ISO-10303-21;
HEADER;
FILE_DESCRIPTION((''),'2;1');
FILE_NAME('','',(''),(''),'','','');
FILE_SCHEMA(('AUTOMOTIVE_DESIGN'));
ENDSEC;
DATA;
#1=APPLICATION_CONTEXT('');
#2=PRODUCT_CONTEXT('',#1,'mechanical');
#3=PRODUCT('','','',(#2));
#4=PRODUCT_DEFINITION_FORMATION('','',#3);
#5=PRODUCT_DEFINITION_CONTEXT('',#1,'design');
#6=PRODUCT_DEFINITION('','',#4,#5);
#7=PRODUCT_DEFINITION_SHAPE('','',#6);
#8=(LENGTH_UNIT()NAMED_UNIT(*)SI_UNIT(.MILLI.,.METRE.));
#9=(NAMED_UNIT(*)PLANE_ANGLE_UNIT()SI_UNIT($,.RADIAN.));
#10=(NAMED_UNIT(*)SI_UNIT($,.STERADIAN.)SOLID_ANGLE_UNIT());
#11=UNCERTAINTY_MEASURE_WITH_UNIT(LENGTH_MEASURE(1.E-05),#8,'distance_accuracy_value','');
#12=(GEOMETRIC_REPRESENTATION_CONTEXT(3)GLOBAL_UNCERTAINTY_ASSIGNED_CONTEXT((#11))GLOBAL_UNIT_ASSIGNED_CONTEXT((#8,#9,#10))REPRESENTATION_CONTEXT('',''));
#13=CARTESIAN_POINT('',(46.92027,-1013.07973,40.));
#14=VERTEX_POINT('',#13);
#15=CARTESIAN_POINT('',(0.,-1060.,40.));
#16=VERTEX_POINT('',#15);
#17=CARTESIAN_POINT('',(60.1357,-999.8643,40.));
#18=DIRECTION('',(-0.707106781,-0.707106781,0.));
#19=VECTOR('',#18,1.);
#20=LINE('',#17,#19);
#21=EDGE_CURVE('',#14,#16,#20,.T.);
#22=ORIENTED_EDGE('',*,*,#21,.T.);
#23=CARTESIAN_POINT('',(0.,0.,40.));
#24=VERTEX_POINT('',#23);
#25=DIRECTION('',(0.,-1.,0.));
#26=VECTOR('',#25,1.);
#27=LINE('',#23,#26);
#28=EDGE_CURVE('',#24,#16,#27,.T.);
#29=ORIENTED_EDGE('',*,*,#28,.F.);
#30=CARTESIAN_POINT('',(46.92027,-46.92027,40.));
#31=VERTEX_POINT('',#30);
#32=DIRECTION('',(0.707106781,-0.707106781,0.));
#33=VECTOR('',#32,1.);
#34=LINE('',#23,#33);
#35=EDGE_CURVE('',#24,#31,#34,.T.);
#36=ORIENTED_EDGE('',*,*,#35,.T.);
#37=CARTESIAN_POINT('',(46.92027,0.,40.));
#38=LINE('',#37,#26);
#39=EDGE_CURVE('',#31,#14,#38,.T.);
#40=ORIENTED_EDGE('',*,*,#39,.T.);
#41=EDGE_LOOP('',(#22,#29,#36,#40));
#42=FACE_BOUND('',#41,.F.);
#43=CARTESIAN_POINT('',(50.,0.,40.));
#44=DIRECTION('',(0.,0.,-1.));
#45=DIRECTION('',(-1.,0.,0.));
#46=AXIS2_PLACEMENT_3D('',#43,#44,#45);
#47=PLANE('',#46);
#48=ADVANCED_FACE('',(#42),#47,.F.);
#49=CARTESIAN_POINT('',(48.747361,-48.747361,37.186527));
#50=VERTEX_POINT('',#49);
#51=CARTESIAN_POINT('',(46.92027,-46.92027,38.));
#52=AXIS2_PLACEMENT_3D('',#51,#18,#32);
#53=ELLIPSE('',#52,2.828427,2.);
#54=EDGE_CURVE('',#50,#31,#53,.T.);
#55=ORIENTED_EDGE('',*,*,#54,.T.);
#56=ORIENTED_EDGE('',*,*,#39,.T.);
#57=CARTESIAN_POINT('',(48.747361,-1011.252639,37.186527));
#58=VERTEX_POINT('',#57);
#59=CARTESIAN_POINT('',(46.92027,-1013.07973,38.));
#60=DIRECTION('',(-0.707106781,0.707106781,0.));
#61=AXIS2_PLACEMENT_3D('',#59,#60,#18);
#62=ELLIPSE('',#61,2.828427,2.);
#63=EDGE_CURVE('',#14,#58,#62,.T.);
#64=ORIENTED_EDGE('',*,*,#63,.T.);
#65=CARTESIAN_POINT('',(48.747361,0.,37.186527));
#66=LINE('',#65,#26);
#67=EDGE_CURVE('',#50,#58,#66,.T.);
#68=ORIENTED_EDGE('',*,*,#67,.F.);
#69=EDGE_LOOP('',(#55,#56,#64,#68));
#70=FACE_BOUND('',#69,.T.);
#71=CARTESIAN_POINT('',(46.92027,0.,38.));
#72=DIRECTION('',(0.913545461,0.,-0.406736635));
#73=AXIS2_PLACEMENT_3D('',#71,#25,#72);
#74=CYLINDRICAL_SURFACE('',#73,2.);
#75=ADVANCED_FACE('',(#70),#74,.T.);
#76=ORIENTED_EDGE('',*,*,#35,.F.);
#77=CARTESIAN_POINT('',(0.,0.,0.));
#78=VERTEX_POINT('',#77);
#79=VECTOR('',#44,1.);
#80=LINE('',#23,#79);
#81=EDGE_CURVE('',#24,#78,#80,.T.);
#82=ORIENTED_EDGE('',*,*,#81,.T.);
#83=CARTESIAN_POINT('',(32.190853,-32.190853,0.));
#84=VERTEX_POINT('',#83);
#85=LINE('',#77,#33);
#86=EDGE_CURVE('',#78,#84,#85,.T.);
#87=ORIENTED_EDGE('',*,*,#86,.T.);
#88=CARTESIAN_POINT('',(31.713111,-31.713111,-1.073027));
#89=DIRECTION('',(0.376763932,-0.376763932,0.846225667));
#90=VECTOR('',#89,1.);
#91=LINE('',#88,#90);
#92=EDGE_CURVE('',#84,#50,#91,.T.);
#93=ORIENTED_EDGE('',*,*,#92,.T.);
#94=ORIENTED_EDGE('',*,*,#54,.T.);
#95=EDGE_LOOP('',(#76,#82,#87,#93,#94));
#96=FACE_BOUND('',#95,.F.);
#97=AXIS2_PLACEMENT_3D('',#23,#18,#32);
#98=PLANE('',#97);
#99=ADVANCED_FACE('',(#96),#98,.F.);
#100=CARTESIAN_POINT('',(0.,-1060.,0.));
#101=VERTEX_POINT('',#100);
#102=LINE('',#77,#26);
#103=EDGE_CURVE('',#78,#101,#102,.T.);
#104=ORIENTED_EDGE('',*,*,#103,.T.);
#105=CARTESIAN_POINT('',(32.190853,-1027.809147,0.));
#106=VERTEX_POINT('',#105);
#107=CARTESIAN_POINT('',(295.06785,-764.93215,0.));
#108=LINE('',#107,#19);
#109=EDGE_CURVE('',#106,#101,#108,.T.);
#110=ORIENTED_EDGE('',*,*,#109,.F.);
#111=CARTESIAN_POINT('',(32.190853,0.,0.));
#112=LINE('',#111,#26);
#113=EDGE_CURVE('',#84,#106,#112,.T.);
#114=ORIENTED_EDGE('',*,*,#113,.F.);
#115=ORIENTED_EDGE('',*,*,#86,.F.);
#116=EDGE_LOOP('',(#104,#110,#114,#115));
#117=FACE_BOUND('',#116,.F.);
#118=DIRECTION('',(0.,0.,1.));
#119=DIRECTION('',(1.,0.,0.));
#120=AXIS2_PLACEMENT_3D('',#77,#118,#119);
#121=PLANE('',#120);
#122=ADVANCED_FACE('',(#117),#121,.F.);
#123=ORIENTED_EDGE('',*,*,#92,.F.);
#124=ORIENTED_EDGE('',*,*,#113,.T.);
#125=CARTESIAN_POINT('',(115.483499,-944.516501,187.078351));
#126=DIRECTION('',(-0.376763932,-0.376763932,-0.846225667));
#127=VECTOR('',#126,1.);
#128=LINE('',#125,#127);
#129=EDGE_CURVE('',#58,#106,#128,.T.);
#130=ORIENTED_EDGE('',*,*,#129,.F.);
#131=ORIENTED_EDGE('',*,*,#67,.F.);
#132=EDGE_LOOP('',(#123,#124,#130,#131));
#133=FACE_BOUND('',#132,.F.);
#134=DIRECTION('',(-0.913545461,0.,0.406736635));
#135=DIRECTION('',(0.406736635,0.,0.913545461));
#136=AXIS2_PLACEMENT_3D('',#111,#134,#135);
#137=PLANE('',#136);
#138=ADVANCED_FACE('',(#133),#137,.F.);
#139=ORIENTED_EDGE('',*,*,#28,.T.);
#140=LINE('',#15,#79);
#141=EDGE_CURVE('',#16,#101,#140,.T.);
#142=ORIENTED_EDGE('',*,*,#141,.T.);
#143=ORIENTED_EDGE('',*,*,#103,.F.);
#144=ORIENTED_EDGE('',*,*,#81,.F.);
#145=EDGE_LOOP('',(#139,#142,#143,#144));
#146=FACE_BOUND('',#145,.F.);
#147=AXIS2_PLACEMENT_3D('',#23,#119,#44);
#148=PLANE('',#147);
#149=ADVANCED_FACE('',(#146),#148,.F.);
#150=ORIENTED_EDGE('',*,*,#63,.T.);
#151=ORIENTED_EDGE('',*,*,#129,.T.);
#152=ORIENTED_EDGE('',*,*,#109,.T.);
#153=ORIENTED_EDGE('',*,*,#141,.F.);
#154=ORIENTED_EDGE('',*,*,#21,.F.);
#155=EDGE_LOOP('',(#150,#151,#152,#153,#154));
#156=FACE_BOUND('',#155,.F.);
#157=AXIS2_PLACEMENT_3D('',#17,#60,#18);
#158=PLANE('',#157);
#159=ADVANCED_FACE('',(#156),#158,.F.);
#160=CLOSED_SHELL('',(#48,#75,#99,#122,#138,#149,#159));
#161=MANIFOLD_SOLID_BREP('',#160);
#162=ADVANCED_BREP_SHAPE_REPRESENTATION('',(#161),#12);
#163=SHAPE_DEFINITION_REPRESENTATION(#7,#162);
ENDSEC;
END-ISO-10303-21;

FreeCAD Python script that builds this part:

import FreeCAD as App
import Part
import Sketcher

V = App.Vector
Q = App.Units.Quantity


def edges_at(feature, points):
    """Names of the edges that pass closest to the given points."""
    edges = feature.Shape.Edges
    near = lambda p: min(range(len(edges)), key=lambda i: edges[i].distToShape(Part.Vertex(*p))[0])
    return sorted({f"Edge{near(p) + 1}" for p in points})

doc = App.newDocument("Part")
body = doc.addObject("PartDesign::Body", "Body")

# Sketch on XZ plane
sketch1 = body.newObject("Sketcher::SketchObject", "Sketch")
sketch1.AttachmentSupport = (doc.getObject("XZ_Plane"), [""])
sketch1.MapMode = "FlatFace"
sketch1.addGeometry([
    Part.LineSegment(V(0, 40, 0), V(0, 0, 0)),
    Part.LineSegment(V(0, 0, 0), V(32, 0, 0)),
    Part.LineSegment(V(32, 0, 0), V(50, 40, 0)),
    Part.LineSegment(V(50, 40, 0), V(0, 40, 0)),
], False)
sketch1.addConstraint([
    Sketcher.Constraint("Coincident", 0, 2, 1, 1),
    Sketcher.Constraint("Coincident", 1, 2, 2, 1),
    Sketcher.Constraint("Coincident", 2, 2, 3, 1),
    Sketcher.Constraint("Coincident", 3, 2, 0, 1),
    Sketcher.Constraint("Vertical", 0),
    Sketcher.Constraint("Horizontal", 1),
    Sketcher.Constraint("Horizontal", 3),
    Sketcher.Constraint("Coincident", 0, 2, -1, 1),
    Sketcher.Constraint("DistanceX", 3, 2, 3, 1, 50.0),
    Sketcher.Constraint("DistanceY", 0, 2, 0, 1, 40.0),
    Sketcher.Constraint("Angle", 2, Q("66 deg")),
])
pad1 = body.newObject("PartDesign::Pad", "Pad")
pad1.Profile = sketch1
pad1.Length = 1060
doc.recompute()

fillet = body.newObject("PartDesign::Fillet", "Fillet")
fillet.Base = (pad1, edges_at(pad1, [(50, -530, 40)]))
fillet.Radius = 2

# Sketch on XY plane
sketch2 = body.newObject("Sketcher::SketchObject", "Sketch001")
sketch2.AttachmentSupport = (doc.getObject("XY_Plane"), [""])
sketch2.MapMode = "FlatFace"
sketch2.AttachmentOffset = App.Placement(V(0, 0, 40), App.Rotation())
sketch2.addGeometry([
    Part.LineSegment(V(49, 0, 0), V(0, 0, 0)),  # 0
    Part.LineSegment(V(0, 0, 0), V(49, -49, 0)),  # 1
    Part.LineSegment(V(49, -49, 0), V(49, 0, 0)),  # 2
    Part.LineSegment(V(60, -1000, 0), V(0, -1060, 0)),  # 3
    Part.LineSegment(V(0, -1060, 0), V(60, -1060, 0)),  # 4
    Part.LineSegment(V(60, -1060, 0), V(60, -1000, 0)),  # 5
], False)
sketch2.addConstraint([
    Sketcher.Constraint("Coincident", 0, 2, 1, 1),
    Sketcher.Constraint("Coincident", 1, 2, 2, 1),
    Sketcher.Constraint("Coincident", 2, 2, 0, 1),
    Sketcher.Constraint("Coincident", 3, 2, 4, 1),
    Sketcher.Constraint("Coincident", 4, 2, 5, 1),
    Sketcher.Constraint("Coincident", 5, 2, 3, 1),
    Sketcher.Constraint("Horizontal", 0),
    Sketcher.Constraint("Vertical", 2),
    Sketcher.Constraint("Horizontal", 4),
    Sketcher.Constraint("Vertical", 5),
    Sketcher.Constraint("Coincident", 0, 2, -1, 1),
    Sketcher.Constraint("PointOnObject", 3, 2, -2),
    Sketcher.Constraint("Perpendicular", 1, 3),
    Sketcher.Constraint("Equal", 0, 2),
    Sketcher.Constraint("DistanceY", 3, 2, -1, 1, 1060.0),
    Sketcher.Constraint("DistanceX", 4, 1, 4, 2, 60.1357),
    Sketcher.Constraint("DistanceX", 0, 2, 0, 1, 49.361777),
])
pocket1 = body.newObject("PartDesign::Pocket", "Pocket")
pocket1.Profile = sketch2
pocket1.Type = "ThroughAll"

doc.recompute()
